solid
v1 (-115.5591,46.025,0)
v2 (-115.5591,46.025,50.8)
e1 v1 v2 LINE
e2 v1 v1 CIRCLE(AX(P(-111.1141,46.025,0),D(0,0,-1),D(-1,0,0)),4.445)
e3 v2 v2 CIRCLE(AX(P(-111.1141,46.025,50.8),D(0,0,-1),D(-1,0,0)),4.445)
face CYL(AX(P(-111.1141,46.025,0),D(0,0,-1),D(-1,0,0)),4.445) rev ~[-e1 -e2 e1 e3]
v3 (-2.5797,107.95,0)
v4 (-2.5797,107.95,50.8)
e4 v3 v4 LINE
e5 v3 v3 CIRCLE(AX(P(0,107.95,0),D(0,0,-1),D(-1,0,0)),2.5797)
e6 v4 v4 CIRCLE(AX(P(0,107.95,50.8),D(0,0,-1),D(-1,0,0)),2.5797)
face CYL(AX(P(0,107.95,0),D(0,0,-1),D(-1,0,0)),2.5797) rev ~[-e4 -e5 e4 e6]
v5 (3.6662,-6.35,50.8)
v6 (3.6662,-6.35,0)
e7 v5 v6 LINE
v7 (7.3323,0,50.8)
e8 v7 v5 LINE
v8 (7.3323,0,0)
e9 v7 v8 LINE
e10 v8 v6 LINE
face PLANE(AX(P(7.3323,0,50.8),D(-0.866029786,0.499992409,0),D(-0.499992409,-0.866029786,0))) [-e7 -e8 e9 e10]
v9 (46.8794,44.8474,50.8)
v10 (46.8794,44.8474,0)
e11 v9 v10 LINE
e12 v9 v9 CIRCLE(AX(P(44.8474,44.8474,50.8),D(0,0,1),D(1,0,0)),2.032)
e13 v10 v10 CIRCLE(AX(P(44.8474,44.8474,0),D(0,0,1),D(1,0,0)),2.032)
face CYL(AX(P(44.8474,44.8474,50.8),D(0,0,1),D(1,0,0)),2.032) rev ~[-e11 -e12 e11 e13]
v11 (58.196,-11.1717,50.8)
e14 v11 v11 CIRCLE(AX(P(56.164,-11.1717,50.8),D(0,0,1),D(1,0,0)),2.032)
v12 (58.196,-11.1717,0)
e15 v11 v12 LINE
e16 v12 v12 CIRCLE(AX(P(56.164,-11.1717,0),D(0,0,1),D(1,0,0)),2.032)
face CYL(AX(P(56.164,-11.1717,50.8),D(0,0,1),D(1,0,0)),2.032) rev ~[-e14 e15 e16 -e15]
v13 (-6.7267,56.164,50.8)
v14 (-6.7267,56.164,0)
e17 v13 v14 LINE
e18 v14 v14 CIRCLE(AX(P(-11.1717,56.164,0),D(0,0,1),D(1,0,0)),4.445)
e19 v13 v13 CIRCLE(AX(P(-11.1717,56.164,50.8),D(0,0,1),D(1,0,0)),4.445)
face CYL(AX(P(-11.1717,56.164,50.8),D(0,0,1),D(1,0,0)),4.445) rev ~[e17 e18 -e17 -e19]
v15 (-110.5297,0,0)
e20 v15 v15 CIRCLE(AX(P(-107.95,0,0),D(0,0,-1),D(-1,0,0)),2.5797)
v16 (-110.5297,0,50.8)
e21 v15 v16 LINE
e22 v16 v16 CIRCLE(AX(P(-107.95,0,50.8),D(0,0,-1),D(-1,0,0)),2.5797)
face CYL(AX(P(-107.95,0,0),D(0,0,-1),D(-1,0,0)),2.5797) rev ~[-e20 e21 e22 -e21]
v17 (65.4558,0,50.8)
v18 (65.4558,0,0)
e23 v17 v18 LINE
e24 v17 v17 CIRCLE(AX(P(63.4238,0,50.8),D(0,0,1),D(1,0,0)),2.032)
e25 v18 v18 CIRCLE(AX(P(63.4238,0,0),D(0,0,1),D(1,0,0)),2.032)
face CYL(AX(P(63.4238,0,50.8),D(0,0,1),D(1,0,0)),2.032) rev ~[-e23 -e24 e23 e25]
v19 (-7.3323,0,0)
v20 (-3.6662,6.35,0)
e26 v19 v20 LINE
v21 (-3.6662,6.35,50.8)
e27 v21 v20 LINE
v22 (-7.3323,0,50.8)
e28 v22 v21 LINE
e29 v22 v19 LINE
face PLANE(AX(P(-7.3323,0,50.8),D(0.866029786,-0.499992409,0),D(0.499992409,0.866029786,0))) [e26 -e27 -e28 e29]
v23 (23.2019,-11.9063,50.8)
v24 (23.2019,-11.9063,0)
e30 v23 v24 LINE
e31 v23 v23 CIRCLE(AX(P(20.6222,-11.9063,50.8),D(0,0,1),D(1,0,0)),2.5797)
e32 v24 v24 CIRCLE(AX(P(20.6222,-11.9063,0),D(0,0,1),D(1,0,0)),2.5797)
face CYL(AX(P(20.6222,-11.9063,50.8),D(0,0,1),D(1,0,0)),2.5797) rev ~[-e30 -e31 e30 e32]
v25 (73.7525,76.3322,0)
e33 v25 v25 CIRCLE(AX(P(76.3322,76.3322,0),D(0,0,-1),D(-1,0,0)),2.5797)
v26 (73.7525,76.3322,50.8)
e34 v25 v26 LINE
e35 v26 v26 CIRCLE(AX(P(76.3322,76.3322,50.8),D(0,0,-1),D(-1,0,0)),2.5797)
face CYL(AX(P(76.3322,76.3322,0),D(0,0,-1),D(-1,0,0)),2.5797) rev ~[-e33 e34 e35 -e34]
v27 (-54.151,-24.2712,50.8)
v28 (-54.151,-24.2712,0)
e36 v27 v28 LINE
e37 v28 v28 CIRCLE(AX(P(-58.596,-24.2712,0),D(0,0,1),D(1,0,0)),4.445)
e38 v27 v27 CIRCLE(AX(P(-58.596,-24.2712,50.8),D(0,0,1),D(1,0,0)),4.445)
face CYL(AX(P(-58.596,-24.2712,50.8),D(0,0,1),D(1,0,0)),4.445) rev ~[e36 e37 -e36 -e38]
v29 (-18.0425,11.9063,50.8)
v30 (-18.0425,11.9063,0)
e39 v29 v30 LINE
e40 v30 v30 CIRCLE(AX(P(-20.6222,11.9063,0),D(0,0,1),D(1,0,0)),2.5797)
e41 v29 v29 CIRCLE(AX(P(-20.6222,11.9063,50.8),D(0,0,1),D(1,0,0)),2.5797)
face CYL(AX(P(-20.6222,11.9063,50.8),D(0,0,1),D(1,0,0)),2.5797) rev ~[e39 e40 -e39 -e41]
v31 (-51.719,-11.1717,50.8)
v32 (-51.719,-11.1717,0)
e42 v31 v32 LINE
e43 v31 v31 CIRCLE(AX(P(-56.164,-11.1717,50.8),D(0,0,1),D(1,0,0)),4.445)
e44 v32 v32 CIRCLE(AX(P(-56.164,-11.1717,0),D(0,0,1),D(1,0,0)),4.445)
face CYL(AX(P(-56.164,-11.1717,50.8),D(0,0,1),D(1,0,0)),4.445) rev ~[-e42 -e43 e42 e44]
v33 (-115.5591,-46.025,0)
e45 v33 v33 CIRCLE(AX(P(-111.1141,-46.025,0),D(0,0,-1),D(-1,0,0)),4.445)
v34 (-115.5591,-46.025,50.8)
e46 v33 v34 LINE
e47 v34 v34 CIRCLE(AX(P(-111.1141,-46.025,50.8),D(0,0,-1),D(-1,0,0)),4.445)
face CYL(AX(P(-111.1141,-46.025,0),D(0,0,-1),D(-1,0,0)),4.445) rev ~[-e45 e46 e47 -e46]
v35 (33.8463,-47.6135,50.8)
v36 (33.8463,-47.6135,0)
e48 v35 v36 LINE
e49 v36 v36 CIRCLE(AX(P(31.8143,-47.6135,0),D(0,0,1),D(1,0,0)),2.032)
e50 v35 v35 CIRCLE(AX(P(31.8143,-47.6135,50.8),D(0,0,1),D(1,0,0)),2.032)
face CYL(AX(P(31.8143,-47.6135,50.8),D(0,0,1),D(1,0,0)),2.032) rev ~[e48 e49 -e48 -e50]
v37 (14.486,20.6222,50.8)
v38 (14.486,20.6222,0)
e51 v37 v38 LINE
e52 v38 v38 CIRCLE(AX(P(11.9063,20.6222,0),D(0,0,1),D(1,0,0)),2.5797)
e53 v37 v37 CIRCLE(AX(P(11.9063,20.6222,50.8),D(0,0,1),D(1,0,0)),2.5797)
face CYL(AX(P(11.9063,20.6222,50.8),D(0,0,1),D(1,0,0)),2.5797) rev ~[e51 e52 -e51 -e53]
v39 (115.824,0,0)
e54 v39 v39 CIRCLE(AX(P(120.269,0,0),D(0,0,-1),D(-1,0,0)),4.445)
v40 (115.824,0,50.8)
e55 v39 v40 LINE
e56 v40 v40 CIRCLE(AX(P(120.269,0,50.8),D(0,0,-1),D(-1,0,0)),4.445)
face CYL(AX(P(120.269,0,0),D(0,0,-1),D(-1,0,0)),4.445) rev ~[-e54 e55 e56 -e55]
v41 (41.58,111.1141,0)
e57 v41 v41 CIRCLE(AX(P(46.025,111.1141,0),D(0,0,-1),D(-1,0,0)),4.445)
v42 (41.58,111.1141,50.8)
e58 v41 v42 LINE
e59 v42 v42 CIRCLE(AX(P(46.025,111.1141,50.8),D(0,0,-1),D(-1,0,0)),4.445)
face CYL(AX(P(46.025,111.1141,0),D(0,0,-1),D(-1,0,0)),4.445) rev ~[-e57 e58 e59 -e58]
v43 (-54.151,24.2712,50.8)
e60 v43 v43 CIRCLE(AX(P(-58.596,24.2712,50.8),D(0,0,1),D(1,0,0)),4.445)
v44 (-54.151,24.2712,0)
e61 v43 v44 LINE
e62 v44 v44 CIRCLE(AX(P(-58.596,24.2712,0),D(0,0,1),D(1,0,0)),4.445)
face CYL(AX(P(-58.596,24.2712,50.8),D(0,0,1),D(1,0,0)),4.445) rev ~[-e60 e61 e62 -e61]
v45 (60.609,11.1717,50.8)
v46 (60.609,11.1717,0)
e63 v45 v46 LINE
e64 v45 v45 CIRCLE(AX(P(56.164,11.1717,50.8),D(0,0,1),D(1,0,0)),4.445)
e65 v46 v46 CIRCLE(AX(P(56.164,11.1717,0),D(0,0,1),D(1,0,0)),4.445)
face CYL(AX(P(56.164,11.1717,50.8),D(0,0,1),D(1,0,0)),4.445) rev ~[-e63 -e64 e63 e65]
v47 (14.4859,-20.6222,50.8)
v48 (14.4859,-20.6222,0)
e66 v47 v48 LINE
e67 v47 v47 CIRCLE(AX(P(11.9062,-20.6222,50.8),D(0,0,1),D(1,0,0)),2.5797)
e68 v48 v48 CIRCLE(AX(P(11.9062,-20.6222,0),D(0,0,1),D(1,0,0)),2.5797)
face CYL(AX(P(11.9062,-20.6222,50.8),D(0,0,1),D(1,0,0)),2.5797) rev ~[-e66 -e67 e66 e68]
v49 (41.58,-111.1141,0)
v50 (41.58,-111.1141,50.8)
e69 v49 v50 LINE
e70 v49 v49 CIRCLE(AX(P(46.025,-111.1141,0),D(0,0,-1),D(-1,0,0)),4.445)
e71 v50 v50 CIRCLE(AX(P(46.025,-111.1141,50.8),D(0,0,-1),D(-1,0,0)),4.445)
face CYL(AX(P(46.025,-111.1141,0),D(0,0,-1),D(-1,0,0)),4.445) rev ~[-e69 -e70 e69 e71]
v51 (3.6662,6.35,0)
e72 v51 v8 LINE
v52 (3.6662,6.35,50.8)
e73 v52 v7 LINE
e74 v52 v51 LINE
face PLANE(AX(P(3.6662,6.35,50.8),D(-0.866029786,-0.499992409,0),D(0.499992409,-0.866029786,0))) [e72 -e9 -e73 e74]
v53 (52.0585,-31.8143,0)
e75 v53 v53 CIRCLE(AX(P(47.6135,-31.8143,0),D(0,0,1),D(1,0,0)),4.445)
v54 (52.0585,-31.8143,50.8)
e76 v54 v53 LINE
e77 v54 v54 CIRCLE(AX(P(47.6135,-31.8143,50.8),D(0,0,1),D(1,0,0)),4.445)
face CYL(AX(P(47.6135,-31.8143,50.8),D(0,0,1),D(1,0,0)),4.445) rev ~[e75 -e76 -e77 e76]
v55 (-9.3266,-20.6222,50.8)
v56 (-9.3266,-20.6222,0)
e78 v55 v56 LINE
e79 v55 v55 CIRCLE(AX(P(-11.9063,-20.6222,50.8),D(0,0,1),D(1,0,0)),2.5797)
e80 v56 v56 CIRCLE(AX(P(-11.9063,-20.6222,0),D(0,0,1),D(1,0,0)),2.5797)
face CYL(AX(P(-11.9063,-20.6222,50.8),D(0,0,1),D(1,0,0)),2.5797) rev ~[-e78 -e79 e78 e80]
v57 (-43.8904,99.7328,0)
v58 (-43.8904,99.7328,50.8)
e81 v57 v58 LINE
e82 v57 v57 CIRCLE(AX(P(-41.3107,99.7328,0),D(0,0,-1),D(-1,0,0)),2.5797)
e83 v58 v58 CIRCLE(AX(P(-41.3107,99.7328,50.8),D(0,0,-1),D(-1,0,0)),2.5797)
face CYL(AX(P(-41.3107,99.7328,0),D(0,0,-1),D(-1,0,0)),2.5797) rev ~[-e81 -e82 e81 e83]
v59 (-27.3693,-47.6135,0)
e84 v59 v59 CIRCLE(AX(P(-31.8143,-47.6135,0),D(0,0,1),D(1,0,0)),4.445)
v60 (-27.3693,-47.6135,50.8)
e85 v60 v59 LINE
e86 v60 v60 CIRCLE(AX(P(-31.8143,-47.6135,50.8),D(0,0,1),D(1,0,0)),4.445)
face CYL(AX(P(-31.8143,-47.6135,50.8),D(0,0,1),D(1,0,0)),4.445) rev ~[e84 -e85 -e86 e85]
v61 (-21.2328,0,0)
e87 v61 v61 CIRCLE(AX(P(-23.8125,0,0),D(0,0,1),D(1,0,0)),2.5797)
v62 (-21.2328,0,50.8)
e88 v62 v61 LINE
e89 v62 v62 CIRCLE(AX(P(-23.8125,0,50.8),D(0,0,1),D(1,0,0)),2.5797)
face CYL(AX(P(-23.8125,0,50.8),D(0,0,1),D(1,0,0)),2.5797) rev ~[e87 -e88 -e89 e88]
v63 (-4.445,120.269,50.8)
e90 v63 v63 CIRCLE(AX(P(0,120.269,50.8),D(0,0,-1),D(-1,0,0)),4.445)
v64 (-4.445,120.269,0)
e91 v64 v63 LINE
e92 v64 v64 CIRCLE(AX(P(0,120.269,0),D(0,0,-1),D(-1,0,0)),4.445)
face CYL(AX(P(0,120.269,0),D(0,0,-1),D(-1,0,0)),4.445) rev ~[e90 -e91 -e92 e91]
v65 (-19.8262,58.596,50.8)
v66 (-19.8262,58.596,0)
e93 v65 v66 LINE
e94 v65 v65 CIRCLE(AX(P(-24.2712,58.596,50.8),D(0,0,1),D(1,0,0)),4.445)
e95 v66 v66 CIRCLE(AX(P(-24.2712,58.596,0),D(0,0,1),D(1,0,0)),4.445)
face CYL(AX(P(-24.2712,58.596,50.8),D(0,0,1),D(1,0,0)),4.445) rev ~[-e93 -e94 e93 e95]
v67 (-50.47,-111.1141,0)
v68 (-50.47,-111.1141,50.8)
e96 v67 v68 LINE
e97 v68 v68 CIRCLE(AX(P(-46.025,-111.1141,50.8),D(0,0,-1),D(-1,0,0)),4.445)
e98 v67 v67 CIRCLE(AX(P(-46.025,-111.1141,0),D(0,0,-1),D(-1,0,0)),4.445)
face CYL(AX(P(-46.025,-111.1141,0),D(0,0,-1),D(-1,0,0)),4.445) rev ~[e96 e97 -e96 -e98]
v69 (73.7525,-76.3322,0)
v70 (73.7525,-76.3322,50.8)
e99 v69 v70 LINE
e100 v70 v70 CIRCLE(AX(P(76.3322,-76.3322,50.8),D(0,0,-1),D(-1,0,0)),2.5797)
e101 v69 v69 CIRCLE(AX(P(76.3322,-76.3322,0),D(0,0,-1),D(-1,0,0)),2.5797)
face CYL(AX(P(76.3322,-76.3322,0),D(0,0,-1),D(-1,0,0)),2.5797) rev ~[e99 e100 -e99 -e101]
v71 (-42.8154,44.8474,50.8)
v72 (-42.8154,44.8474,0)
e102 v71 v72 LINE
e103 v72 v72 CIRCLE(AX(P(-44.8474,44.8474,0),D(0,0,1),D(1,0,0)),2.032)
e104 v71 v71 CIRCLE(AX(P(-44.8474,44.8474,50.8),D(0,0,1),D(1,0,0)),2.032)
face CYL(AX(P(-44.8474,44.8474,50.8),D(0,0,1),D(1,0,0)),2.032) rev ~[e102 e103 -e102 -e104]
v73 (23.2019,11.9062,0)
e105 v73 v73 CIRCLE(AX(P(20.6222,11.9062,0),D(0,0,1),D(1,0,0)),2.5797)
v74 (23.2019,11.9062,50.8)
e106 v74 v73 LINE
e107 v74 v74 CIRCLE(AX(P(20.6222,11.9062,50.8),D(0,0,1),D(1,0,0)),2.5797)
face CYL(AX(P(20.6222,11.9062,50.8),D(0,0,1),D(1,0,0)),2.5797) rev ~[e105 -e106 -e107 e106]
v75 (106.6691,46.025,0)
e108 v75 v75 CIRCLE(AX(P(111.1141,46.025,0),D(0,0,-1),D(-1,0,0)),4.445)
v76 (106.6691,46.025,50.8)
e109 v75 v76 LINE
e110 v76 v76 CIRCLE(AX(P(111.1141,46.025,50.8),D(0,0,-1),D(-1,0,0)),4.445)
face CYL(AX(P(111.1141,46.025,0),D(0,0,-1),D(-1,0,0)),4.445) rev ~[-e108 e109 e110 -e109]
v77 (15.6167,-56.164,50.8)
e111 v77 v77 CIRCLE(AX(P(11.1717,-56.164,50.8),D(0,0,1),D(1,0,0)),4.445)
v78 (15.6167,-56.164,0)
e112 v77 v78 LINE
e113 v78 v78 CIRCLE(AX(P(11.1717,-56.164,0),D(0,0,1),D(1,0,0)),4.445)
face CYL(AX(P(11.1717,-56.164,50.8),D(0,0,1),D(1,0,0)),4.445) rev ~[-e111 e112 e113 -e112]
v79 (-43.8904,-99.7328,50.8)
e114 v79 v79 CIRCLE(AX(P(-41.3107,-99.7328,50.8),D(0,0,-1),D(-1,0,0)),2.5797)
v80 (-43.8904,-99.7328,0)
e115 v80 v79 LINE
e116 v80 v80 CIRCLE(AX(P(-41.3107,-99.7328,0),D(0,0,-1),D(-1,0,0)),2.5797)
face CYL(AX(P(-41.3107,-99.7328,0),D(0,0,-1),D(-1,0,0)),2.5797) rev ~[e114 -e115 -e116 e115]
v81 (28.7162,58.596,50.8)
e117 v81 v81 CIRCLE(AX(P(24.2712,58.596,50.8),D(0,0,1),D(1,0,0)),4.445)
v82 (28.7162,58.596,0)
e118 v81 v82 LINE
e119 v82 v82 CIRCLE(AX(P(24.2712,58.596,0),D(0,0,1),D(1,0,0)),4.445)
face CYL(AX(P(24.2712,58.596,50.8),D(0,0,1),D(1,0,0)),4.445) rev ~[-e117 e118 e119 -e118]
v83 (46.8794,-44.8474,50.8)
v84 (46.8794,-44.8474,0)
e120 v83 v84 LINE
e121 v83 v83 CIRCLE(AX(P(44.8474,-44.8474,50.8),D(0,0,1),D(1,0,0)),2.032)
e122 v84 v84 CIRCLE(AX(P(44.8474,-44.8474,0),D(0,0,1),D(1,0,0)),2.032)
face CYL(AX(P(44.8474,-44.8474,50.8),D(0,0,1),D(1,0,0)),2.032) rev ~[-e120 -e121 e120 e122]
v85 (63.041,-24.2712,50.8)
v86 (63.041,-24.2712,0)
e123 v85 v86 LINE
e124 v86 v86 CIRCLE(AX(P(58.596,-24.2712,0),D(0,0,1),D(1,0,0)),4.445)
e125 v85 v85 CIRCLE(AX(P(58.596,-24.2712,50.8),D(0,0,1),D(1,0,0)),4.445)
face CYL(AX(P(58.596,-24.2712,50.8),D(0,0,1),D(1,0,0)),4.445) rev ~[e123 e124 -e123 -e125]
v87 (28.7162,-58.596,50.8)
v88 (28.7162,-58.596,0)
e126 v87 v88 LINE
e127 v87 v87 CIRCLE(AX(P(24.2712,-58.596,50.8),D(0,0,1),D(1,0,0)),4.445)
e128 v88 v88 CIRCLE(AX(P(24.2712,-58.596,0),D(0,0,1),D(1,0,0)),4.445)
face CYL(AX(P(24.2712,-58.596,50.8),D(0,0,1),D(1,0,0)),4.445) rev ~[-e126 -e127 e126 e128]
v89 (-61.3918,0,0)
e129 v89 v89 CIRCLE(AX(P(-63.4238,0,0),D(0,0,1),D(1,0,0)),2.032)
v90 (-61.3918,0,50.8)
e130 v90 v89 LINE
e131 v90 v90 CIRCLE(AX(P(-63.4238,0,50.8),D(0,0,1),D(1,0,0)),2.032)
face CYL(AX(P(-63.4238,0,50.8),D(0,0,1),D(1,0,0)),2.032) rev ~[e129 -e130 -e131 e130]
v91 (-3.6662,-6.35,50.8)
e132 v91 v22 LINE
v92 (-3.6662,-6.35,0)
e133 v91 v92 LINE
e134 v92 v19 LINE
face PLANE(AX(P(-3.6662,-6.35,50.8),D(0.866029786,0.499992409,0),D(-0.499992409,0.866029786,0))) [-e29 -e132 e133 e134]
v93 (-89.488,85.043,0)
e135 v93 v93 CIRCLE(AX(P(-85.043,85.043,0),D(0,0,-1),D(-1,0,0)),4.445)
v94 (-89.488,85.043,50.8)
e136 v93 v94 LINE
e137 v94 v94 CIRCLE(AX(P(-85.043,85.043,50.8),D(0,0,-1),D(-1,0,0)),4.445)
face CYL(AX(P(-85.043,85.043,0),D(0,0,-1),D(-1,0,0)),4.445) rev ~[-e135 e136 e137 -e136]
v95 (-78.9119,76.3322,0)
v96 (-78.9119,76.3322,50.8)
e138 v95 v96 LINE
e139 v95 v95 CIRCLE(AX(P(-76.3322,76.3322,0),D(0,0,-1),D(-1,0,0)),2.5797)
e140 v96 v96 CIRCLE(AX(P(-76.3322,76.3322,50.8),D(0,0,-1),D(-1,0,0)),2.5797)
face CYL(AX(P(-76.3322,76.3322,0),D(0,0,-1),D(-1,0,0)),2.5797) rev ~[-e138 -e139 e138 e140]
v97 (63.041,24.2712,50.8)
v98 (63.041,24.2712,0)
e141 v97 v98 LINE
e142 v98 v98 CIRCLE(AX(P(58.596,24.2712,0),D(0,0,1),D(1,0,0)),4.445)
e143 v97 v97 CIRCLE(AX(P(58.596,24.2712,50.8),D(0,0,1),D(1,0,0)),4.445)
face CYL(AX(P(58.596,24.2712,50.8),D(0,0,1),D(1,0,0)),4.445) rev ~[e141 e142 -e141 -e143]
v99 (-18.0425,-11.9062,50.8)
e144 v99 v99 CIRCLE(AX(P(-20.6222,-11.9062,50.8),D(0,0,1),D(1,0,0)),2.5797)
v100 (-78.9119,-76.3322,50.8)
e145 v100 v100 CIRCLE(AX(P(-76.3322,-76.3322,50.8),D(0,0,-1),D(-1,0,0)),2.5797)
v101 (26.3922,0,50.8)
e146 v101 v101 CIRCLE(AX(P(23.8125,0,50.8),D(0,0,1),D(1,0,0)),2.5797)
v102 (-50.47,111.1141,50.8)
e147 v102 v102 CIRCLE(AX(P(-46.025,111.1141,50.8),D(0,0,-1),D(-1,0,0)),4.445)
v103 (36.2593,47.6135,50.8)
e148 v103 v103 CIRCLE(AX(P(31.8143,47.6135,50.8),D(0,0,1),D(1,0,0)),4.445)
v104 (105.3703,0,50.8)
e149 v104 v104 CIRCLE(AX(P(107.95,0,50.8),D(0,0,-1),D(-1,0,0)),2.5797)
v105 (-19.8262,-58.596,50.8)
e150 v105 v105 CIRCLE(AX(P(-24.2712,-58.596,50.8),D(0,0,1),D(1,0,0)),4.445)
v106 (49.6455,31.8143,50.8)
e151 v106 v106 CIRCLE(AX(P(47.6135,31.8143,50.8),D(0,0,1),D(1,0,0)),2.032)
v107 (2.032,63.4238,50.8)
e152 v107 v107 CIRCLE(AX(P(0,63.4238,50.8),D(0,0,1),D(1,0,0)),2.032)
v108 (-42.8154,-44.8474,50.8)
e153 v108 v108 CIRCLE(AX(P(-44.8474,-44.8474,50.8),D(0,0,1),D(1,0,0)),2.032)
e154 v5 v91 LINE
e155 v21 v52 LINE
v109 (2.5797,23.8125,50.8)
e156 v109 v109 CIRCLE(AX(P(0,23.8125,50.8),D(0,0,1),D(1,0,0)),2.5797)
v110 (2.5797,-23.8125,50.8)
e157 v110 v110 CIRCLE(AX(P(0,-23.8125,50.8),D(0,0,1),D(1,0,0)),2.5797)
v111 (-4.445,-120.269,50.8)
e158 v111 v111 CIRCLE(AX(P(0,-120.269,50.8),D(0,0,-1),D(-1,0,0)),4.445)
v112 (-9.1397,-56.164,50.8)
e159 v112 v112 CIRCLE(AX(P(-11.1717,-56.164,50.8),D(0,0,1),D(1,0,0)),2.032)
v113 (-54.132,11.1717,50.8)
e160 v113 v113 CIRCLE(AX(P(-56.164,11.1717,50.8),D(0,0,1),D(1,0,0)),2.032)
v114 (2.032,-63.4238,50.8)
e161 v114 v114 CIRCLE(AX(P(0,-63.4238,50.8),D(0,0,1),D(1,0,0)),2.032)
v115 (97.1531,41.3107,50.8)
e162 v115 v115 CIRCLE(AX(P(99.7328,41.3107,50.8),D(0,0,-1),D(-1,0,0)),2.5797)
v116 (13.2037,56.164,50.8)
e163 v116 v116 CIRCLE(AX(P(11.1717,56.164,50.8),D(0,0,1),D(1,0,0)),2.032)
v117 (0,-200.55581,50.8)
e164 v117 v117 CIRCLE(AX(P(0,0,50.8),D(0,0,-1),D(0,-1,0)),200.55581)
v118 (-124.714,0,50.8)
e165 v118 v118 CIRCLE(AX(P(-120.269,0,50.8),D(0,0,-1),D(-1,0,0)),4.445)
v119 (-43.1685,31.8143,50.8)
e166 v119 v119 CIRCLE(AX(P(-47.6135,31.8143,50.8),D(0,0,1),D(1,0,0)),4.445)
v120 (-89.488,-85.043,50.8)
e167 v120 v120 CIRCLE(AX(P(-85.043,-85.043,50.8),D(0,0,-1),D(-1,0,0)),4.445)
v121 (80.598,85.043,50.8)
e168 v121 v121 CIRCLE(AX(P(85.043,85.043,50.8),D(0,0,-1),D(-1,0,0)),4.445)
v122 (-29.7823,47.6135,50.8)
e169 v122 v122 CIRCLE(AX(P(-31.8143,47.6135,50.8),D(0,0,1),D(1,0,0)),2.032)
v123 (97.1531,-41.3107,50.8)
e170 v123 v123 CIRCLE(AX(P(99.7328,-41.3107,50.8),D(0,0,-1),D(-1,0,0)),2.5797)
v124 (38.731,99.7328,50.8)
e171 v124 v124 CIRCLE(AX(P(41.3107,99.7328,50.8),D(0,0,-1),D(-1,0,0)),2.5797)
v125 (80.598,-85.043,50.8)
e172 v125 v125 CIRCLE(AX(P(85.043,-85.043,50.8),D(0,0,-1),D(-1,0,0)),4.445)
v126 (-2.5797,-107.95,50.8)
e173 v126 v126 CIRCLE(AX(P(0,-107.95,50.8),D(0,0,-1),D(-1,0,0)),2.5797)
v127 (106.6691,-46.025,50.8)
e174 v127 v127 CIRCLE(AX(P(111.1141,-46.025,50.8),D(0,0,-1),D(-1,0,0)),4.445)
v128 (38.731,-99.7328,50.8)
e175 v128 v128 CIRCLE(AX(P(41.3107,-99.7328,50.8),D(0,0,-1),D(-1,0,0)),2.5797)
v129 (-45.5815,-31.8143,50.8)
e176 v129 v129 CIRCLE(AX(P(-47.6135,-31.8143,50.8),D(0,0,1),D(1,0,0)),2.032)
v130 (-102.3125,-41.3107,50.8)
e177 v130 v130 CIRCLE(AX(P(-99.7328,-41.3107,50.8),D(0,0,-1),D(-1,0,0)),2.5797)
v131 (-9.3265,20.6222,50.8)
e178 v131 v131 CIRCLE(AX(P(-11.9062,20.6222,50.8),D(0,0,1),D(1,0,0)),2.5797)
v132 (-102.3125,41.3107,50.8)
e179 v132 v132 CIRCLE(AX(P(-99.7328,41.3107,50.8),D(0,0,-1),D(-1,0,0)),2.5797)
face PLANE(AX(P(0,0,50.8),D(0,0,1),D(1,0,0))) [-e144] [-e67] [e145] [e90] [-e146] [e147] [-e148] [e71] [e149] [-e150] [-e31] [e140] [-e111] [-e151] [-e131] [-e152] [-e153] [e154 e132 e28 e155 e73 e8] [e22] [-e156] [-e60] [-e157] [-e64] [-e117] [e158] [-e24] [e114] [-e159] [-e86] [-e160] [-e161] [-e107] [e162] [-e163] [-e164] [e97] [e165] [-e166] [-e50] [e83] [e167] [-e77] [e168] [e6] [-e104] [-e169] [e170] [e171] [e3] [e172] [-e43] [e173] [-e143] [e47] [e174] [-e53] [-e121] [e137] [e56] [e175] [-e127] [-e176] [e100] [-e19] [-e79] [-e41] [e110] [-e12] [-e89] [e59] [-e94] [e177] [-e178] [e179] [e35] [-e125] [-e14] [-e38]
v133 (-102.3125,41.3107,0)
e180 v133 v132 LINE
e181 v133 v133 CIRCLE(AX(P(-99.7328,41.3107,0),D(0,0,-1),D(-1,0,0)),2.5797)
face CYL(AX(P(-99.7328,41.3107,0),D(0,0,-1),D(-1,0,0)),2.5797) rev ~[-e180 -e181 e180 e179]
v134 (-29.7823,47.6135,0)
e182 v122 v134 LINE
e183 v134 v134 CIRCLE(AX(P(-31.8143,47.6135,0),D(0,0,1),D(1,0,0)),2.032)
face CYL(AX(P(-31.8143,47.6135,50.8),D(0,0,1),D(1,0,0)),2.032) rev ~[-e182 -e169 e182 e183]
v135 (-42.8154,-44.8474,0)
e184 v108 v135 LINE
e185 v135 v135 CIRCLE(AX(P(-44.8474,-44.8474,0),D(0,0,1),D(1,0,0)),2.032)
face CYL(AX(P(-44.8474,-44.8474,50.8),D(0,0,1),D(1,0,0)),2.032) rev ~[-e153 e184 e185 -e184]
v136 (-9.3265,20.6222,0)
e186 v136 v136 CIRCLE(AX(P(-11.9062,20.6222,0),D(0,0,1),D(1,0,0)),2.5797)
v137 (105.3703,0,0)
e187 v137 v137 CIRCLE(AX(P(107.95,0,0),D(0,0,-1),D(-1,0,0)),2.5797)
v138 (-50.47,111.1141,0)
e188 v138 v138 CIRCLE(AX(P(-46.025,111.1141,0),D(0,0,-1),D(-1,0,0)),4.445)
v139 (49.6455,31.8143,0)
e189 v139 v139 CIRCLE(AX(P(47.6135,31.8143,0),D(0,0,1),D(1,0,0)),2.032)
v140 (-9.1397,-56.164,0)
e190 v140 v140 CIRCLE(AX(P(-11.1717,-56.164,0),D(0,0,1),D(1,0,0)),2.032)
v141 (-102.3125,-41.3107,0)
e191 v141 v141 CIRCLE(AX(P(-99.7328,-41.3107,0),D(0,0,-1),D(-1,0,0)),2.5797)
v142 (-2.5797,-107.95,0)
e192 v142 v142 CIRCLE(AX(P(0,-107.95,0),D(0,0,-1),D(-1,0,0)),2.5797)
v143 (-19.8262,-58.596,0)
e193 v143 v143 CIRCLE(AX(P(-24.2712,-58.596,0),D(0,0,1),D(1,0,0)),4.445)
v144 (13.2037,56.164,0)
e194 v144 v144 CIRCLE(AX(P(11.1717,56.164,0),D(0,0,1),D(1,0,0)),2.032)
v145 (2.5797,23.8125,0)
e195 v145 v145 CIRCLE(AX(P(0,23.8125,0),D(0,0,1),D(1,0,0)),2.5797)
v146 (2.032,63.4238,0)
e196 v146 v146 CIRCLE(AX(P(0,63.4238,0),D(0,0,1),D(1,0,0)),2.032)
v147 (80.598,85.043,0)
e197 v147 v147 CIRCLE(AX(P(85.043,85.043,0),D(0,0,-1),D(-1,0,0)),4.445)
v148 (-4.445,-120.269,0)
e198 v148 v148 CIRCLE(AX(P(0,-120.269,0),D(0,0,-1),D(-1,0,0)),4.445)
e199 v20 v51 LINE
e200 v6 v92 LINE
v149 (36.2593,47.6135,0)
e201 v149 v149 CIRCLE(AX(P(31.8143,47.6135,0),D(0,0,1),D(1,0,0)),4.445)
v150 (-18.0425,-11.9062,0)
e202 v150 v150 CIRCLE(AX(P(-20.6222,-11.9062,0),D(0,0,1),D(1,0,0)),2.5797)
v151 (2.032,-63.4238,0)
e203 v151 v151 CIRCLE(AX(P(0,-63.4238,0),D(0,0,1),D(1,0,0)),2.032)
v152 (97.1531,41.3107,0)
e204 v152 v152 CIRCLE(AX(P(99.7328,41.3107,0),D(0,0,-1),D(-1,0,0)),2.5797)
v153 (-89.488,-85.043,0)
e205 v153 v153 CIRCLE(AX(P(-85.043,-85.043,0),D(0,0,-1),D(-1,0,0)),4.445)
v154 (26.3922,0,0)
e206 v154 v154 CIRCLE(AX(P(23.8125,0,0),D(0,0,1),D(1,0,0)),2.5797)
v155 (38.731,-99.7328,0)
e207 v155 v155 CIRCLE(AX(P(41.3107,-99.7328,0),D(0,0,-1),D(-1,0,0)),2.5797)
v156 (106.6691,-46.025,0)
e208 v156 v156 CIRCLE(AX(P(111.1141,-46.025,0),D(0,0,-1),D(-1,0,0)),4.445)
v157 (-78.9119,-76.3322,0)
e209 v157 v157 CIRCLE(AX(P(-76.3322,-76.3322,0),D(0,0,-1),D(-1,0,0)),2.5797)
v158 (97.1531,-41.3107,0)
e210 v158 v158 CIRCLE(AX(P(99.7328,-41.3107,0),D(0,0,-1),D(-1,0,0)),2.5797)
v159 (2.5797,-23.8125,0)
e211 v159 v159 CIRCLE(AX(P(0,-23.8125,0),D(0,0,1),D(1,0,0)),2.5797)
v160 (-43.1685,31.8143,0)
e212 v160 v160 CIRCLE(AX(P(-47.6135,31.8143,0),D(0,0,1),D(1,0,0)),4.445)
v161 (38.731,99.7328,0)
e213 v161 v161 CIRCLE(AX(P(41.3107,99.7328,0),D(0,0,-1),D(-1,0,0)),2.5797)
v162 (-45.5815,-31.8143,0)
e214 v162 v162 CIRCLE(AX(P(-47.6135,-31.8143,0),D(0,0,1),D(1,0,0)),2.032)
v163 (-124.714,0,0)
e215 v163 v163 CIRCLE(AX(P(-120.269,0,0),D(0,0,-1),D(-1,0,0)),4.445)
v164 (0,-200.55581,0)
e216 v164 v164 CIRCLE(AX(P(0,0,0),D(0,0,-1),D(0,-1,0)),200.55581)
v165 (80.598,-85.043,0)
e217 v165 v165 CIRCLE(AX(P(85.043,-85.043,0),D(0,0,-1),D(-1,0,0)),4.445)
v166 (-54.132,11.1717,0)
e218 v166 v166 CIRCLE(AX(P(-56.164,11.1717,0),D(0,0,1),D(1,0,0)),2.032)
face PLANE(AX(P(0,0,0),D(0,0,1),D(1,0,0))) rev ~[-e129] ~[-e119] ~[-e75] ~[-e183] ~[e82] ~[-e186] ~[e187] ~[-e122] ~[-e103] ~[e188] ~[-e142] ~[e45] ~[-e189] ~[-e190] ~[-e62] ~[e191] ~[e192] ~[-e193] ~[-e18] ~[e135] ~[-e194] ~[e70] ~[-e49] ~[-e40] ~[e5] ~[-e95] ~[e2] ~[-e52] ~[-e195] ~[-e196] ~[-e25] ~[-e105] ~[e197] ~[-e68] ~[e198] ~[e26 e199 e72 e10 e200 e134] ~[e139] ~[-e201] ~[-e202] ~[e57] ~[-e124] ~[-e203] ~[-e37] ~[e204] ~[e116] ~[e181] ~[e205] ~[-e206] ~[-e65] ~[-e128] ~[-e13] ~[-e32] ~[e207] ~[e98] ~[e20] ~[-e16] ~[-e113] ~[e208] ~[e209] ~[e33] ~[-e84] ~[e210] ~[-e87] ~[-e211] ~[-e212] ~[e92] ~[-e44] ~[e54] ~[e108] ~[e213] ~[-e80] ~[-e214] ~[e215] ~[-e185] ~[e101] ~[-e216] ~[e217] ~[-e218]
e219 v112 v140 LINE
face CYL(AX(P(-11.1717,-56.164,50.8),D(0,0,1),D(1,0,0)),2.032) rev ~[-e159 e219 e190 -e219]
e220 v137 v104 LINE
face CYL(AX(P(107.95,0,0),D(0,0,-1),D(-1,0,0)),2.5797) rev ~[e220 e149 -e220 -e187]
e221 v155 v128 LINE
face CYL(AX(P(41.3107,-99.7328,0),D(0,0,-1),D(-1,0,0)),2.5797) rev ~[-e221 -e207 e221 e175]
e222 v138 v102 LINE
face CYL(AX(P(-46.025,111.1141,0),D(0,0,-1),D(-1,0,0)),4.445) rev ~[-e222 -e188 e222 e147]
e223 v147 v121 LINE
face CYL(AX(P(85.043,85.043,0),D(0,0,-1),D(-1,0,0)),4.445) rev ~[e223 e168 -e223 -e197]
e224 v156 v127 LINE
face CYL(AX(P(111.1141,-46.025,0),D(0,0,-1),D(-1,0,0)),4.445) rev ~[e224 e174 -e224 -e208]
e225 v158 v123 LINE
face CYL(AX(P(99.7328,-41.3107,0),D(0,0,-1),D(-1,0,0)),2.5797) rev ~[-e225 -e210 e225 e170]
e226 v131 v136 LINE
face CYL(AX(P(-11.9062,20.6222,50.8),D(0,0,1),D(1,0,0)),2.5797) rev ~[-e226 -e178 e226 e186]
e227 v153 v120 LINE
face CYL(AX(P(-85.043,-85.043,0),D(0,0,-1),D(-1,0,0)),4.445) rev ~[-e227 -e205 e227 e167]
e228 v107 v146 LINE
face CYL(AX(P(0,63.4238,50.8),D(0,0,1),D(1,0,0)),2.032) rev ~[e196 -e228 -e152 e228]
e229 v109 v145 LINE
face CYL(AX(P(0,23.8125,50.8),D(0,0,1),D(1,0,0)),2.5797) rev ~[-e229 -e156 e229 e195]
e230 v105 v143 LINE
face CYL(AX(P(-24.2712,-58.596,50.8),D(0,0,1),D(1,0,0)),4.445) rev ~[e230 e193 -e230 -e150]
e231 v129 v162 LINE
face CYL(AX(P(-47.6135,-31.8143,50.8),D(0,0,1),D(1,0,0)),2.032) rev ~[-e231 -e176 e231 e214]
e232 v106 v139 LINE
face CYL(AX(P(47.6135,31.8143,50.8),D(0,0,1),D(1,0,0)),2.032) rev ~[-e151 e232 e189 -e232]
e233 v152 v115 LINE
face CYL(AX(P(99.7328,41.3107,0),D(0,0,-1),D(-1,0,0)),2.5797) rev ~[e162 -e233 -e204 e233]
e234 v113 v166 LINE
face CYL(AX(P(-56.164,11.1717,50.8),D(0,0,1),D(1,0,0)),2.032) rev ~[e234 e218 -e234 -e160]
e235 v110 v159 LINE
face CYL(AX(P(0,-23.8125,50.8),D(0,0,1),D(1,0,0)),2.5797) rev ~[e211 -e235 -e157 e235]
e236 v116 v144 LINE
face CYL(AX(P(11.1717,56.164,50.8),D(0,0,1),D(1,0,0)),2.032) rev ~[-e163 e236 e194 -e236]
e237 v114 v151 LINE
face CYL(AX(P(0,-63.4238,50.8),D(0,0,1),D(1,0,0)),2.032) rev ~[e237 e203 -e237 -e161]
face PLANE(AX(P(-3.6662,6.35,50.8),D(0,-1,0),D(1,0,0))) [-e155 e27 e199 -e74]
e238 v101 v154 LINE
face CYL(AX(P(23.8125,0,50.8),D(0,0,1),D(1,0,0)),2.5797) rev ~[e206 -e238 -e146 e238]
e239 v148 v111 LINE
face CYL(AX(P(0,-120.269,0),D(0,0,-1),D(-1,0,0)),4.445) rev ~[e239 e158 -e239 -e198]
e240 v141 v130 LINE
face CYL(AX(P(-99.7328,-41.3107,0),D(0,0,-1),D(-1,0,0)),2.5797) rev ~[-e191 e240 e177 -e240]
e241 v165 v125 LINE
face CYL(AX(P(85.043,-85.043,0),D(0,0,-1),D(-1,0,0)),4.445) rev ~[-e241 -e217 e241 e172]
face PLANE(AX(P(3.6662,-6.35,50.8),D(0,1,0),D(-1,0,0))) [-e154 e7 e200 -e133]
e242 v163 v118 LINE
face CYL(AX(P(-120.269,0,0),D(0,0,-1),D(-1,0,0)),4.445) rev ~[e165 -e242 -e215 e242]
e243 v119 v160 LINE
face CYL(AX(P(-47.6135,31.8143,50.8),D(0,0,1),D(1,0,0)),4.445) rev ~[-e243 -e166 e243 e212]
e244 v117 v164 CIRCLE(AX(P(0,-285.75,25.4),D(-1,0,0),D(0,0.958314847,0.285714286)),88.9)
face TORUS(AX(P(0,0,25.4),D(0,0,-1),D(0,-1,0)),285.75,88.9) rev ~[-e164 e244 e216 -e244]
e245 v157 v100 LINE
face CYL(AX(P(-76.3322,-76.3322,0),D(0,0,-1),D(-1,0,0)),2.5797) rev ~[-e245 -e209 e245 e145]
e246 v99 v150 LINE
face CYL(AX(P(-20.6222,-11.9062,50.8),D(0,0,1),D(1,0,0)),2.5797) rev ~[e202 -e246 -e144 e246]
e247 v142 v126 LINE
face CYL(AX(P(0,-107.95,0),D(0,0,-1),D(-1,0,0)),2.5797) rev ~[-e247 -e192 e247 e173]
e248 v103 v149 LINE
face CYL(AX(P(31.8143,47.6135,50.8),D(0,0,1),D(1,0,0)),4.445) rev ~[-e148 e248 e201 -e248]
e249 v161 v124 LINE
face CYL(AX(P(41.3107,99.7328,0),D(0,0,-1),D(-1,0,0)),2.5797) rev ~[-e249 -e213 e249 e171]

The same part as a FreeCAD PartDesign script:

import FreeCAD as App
import Part
import Sketcher
from FreeCAD import Vector
Q = App.Units.Quantity


def add_polygon(sketch, points):
    """Adds a closed chain of lines whose ends are joined by coincident constraints."""
    first, n = sketch.GeometryCount, len(points)
    for a, b in zip(points, points[1:] + points[:1]):
        sketch.addGeometry(Part.LineSegment(App.Vector(*a, 0), App.Vector(*b, 0)), False)
    for i in range(n):
        sketch.addConstraint(Sketcher.Constraint("Coincident", first + i, 2, first + (i + 1) % n, 1))

doc = App.newDocument("Part")
params = doc.addObject("Spreadsheet::Sheet", "Params")
for row, (alias, value) in enumerate([
    ("sketch1_diameter", "16 in"),
    ("pad1_length", "2 in"),
    ("sketch2_diameter", "7 in"),
    ("groove_angle", "360 deg"),
    ("sketch3_diameter", "0.203126 in"),
    ("sketch4_diameter", "0.35 in"),
    ("sketch4_diameter2", "0.203126 in"),
    ("sketch5_diameter", "0.16 in"),
    ("sketch5_diameter2", "0.35 in"),
], start=1):
    params.set(f"A{row}", alias)
    params.set(f"B{row}", "=" + value)
    params.setAlias(f"B{row}", alias)

body = doc.addObject("PartDesign::Body", "Body")

# Sketch on XY plane
sketch1 = body.newObject("Sketcher::SketchObject", "Sketch")
sketch1.AttachmentSupport = (doc.getObject("XY_Plane"), [""])
sketch1.MapMode = "FlatFace"
sketch1.addGeometry(Part.Circle(Vector(0, 0, 0), Vector(0, 0, 1), 203.2), False)
sketch1.addConstraint([
    Sketcher.Constraint("Coincident", 0, 3, -1, 1),
    Sketcher.Constraint("Diameter", 0, Q("16 in")),
])
sketch1.setExpression("Constraints[1]", "Params.sketch1_diameter")
pad1 = body.newObject("PartDesign::Pad", "Pad")
pad1.Profile = sketch1
pad1.setExpression("Length", "Params.pad1_length")

# Sketch on YZ plane
sketch2 = body.newObject("Sketcher::SketchObject", "Sketch001")
sketch2.AttachmentSupport = (doc.getObject("YZ_Plane"), [""])
sketch2.MapMode = "FlatFace"
sketch2.addGeometry(Part.Circle(Vector(-285.75, 25.4, 0), Vector(0, 0, 1), 88.9), False)
sketch2.addConstraint([
    Sketcher.Constraint("Diameter", 0, Q("7 in")),
    Sketcher.Constraint("DistanceY", -1, 1, 0, 3, Q("1 in")),
    Sketcher.Constraint("DistanceX", 0, 3, -1, 1, Q("11.25 in")),
])
sketch2.setExpression("Constraints[0]", "Params.sketch2_diameter")
groove = body.newObject("PartDesign::Groove", "Groove")
groove.Profile = sketch2
groove.ReferenceAxis = (sketch2, ["V_Axis"])
groove.setExpression("Angle", "Params.groove_angle")

# Sketch on XY plane
sketch3 = body.newObject("Sketcher::SketchObject", "Sketch002")
sketch3.AttachmentSupport = (doc.getObject("XY_Plane"), [""])
sketch3.MapMode = "FlatFace"
sketch3.AttachmentOffset = App.Placement(Vector(0, 0, 2 * 25.4), App.Rotation())
add_polygon(sketch3, [(3.6662, 6.35), (-3.6662, 6.35), (-7.3323, 0), (-3.6662, -6.35), (3.6662, -6.35), (7.3323, 0)])  # lines 0-5
sketch3.addGeometry(Part.Circle(Vector(0, 23.8125, 0), Vector(0, 0, 1), 2.5797), False)  # 6
sketch3.addGeometry(Part.Circle(Vector(-11.9062, 20.6222, 0), Vector(0, 0, 1), 2.5797), False)  # 7
sketch3.addGeometry(Part.Circle(Vector(-20.6222, 11.9063, 0), Vector(0, 0, 1), 2.5797), False)  # 8
sketch3.addGeometry(Part.Circle(Vector(-23.8125, 0, 0), Vector(0, 0, 1), 2.5797), False)  # 9
sketch3.addGeometry(Part.Circle(Vector(-20.6222, -11.9062, 0), Vector(0, 0, 1), 2.5797), False)  # 10
sketch3.addGeometry(Part.Circle(Vector(-11.9063, -20.6222, 0), Vector(0, 0, 1), 2.5797), False)  # 11
sketch3.addGeometry(Part.Circle(Vector(0, -23.8125, 0), Vector(0, 0, 1), 2.5797), False)  # 12
sketch3.addGeometry(Part.Circle(Vector(11.9062, -20.6222, 0), Vector(0, 0, 1), 2.5797), False)  # 13
sketch3.addGeometry(Part.Circle(Vector(20.6222, -11.9063, 0), Vector(0, 0, 1), 2.5797), False)  # 14
sketch3.addGeometry(Part.Circle(Vector(23.8125, 0, 0), Vector(0, 0, 1), 2.5797), False)  # 15
sketch3.addGeometry(Part.Circle(Vector(20.6222, 11.9062, 0), Vector(0, 0, 1), 2.5797), False)  # 16
sketch3.addGeometry(Part.Circle(Vector(11.9063, 20.6222, 0), Vector(0, 0, 1), 2.5797), False)  # 17
sketch3.addConstraint([
    Sketcher.Constraint("Horizontal", 0),
    Sketcher.Constraint("Horizontal", 3),
    Sketcher.Constraint("Equal", 6, 7),
    Sketcher.Constraint("Equal", 7, 8),
    Sketcher.Constraint("Equal", 8, 9),
    Sketcher.Constraint("Equal", 9, 10),
    Sketcher.Constraint("Equal", 10, 11),
    Sketcher.Constraint("Equal", 11, 12),
    Sketcher.Constraint("Equal", 12, 13),
    Sketcher.Constraint("Equal", 13, 14),
    Sketcher.Constraint("Equal", 14, 15),
    Sketcher.Constraint("Equal", 15, 16),
    Sketcher.Constraint("Equal", 16, 17),
    Sketcher.Constraint("Symmetric", 6, 3, 12, 3, -1, 1),
    Sketcher.Constraint("Symmetric", 7, 3, 13, 3, -1, 1),
    Sketcher.Constraint("Symmetric", 8, 3, 14, 3, -1, 1),
    Sketcher.Constraint("Symmetric", 9, 3, 15, 3, -1, 1),
    Sketcher.Constraint("Symmetric", 10, 3, 16, 3, -1, 1),
    Sketcher.Constraint("Symmetric", 11, 3, 17, 3, -1, 1),
    Sketcher.Constraint("Symmetric", 0, 2, 3, 2, -1, 1),
    Sketcher.Constraint("Symmetric", 1, 2, 4, 2, -1, 1),
    Sketcher.Constraint("Symmetric", 11, 3, 13, 3, -2),
    Sketcher.Constraint("Symmetric", 10, 3, 14, 3, -2),
    Sketcher.Constraint("PointOnObject", 6, 3, -2),
    Sketcher.Constraint("PointOnObject", 9, 3, -1),
    Sketcher.Constraint("PointOnObject", 1, 2, -1),
    Sketcher.Constraint("Parallel", 2, 5),
    Sketcher.Constraint("Vertical", 0, 2, 2, 2),
    Sketcher.Constraint("Diameter", 6, Q("0.203126 in")),
    Sketcher.Constraint("DistanceY", 2, 2, 0, 2, Q("0.5 in")),
    Sketcher.Constraint("DistanceY", -1, 1, 6, 3, Q("0.9375 in")),
    Sketcher.Constraint("DistanceX", 9, 3, -1, 1, Q("0.9375 in")),
    Sketcher.Constraint("Angle", 1, Q("-119.9995 deg")),
    Sketcher.Constraint("DistanceY", 10, 3, 8, 3, Q("0.9375 in")),
    Sketcher.Constraint("DistanceX", 11, 3, 13, 3, Q("0.9375 in")),
    Sketcher.Constraint("DistanceX", 1, 2, 3, 2, Q("0.433 in")),
    Sketcher.Constraint("DistanceY", -1, 1, 7, 3, Q("0.8119 in")),
    Sketcher.Constraint("DistanceX", 8, 3, -1, 1, Q("0.8119 in")),
])
sketch3.setExpression("Constraints[34]", "Params.sketch3_diameter")
pocket1 = body.newObject("PartDesign::Pocket", "Pocket")
pocket1.Profile = sketch3
pocket1.Type = "ThroughAll"

# Sketch on XY plane
sketch4 = body.newObject("Sketcher::SketchObject", "Sketch003")
sketch4.AttachmentSupport = (doc.getObject("XY_Plane"), [""])
sketch4.MapMode = "FlatFace"
sketch4.addGeometry([
    Part.Circle(Vector(0, 107.95, 0), Vector(0, 0, 1), 2.5797),  # 0
    Part.Circle(Vector(0, 120.269, 0), Vector(0, 0, 1), 4.445),  # 1
    Part.Circle(Vector(41.3107, 99.7328, 0), Vector(0, 0, 1), 2.5797),  # 2
    Part.Circle(Vector(46.025, 111.1141, 0), Vector(0, 0, 1), 4.445),  # 3
    Part.Circle(Vector(76.3322, 76.3322, 0), Vector(0, 0, 1), 2.5797),  # 4
    Part.Circle(Vector(85.043, 85.043, 0), Vector(0, 0, 1), 4.445),  # 5
    Part.Circle(Vector(99.7328, 41.3107, 0), Vector(0, 0, 1), 2.5797),  # 6
    Part.Circle(Vector(111.1141, 46.025, 0), Vector(0, 0, 1), 4.445),  # 7
    Part.Circle(Vector(107.95, 0, 0), Vector(0, 0, 1), 2.5797),  # 8
    Part.Circle(Vector(120.269, 0, 0), Vector(0, 0, 1), 4.445),  # 9
    Part.Circle(Vector(99.7328, -41.3107, 0), Vector(0, 0, 1), 2.5797),  # 10
    Part.Circle(Vector(111.1141, -46.025, 0), Vector(0, 0, 1), 4.445),  # 11
    Part.Circle(Vector(76.3322, -76.3322, 0), Vector(0, 0, 1), 2.5797),  # 12
    Part.Circle(Vector(85.043, -85.043, 0), Vector(0, 0, 1), 4.445),  # 13
    Part.Circle(Vector(41.3107, -99.7328, 0), Vector(0, 0, 1), 2.5797),  # 14
    Part.Circle(Vector(46.025, -111.1141, 0), Vector(0, 0, 1), 4.445),  # 15
    Part.Circle(Vector(0, -107.95, 0), Vector(0, 0, 1), 2.5797),  # 16
    Part.Circle(Vector(0, -120.269, 0), Vector(0, 0, 1), 4.445),  # 17
    Part.Circle(Vector(-41.3107, -99.7328, 0), Vector(0, 0, 1), 2.5797),  # 18
    Part.Circle(Vector(-46.025, -111.1141, 0), Vector(0, 0, 1), 4.445),  # 19
    Part.Circle(Vector(-76.3322, -76.3322, 0), Vector(0, 0, 1), 2.5797),  # 20
    Part.Circle(Vector(-85.043, -85.043, 0), Vector(0, 0, 1), 4.445),  # 21
    Part.Circle(Vector(-99.7328, -41.3107, 0), Vector(0, 0, 1), 2.5797),  # 22
    Part.Circle(Vector(-111.1141, -46.025, 0), Vector(0, 0, 1), 4.445),  # 23
    Part.Circle(Vector(-107.95, 0, 0), Vector(0, 0, 1), 2.5797),  # 24
    Part.Circle(Vector(-120.269, 0, 0), Vector(0, 0, 1), 4.445),  # 25
    Part.Circle(Vector(-99.7328, 41.3107, 0), Vector(0, 0, 1), 2.5797),  # 26
    Part.Circle(Vector(-111.1141, 46.025, 0), Vector(0, 0, 1), 4.445),  # 27
    Part.Circle(Vector(-76.3322, 76.3322, 0), Vector(0, 0, 1), 2.5797),  # 28
    Part.Circle(Vector(-85.043, 85.043, 0), Vector(0, 0, 1), 4.445),  # 29
    Part.Circle(Vector(-41.3107, 99.7328, 0), Vector(0, 0, 1), 2.5797),  # 30
    Part.Circle(Vector(-46.025, 111.1141, 0), Vector(0, 0, 1), 4.445),  # 31
], False)
sketch4.addConstraint([
    Sketcher.Constraint("Equal", 0, 2),
    Sketcher.Constraint("Equal", 1, 3),
    Sketcher.Constraint("Equal", 2, 4),
    Sketcher.Constraint("Equal", 3, 5),
    Sketcher.Constraint("Equal", 4, 6),
    Sketcher.Constraint("Equal", 5, 7),
    Sketcher.Constraint("Equal", 6, 8),
    Sketcher.Constraint("Equal", 7, 9),
    Sketcher.Constraint("Equal", 8, 10),
    Sketcher.Constraint("Equal", 9, 11),
    Sketcher.Constraint("Equal", 10, 12),
    Sketcher.Constraint("Equal", 11, 13),
    Sketcher.Constraint("Equal", 12, 14),
    Sketcher.Constraint("Equal", 13, 15),
    Sketcher.Constraint("Equal", 14, 16),
    Sketcher.Constraint("Equal", 15, 17),
    Sketcher.Constraint("Equal", 16, 18),
    Sketcher.Constraint("Equal", 17, 19),
    Sketcher.Constraint("Equal", 18, 20),
    Sketcher.Constraint("Equal", 19, 21),
    Sketcher.Constraint("Equal", 20, 22),
    Sketcher.Constraint("Equal", 21, 23),
    Sketcher.Constraint("Equal", 22, 24),
    Sketcher.Constraint("Equal", 23, 25),
    Sketcher.Constraint("Equal", 24, 26),
    Sketcher.Constraint("Equal", 25, 27),
    Sketcher.Constraint("Equal", 26, 28),
    Sketcher.Constraint("Equal", 27, 29),
    Sketcher.Constraint("Equal", 28, 30),
    Sketcher.Constraint("Equal", 29, 31),
    Sketcher.Constraint("Symmetric", 0, 3, 16, 3, -1, 1),
    Sketcher.Constraint("Symmetric", 1, 3, 17, 3, -1, 1),
    Sketcher.Constraint("Symmetric", 2, 3, 18, 3, -1, 1),
    Sketcher.Constraint("Symmetric", 3, 3, 19, 3, -1, 1),
    Sketcher.Constraint("Symmetric", 4, 3, 20, 3, -1, 1),
    Sketcher.Constraint("Symmetric", 5, 3, 21, 3, -1, 1),
    Sketcher.Constraint("Symmetric", 6, 3, 22, 3, -1, 1),
    Sketcher.Constraint("Symmetric", 7, 3, 23, 3, -1, 1),
    Sketcher.Constraint("Symmetric", 8, 3, 24, 3, -1, 1),
    Sketcher.Constraint("Symmetric", 9, 3, 25, 3, -1, 1),
    Sketcher.Constraint("Symmetric", 10, 3, 26, 3, -1, 1),
    Sketcher.Constraint("Symmetric", 11, 3, 27, 3, -1, 1),
    Sketcher.Constraint("Symmetric", 12, 3, 28, 3, -1, 1),
    Sketcher.Constraint("Symmetric", 13, 3, 29, 3, -1, 1),
    Sketcher.Constraint("Symmetric", 14, 3, 30, 3, -1, 1),
    Sketcher.Constraint("Symmetric", 15, 3, 31, 3, -1, 1),
    Sketcher.Constraint("Symmetric", 14, 3, 18, 3, -2),
    Sketcher.Constraint("Symmetric", 15, 3, 19, 3, -2),
    Sketcher.Constraint("Symmetric", 12, 3, 20, 3, -2),
    Sketcher.Constraint("Symmetric", 13, 3, 21, 3, -2),
    Sketcher.Constraint("Symmetric", 10, 3, 22, 3, -2),
    Sketcher.Constraint("Symmetric", 11, 3, 23, 3, -2),
    Sketcher.Constraint("PointOnObject", 0, 3, -2),
    Sketcher.Constraint("PointOnObject", 1, 3, -2),
    Sketcher.Constraint("PointOnObject", 8, 3, -1),
    Sketcher.Constraint("PointOnObject", 9, 3, -1),
    Sketcher.Constraint("Diameter", 1, Q("0.35 in")),
    Sketcher.Constraint("Diameter", 0, Q("0.203126 in")),
    Sketcher.Constraint("DistanceY", -1, 1, 0, 3, Q("4.25 in")),
    Sketcher.Constraint("DistanceX", -1, 1, 8, 3, Q("4.25 in")),
    Sketcher.Constraint("DistanceY", -1, 1, 1, 3, Q("4.735 in")),
    Sketcher.Constraint("DistanceX", -1, 1, 9, 3, Q("4.735 in")),
    Sketcher.Constraint("DistanceX", -1, 1, 3, 3, Q("1.812 in")),
    Sketcher.Constraint("DistanceY", -1, 1, 7, 3, Q("1.812 in")),
    Sketcher.Constraint("DistanceX", -1, 1, 2, 3, Q("1.6264 in")),
    Sketcher.Constraint("DistanceY", -1, 1, 2, 3, Q("3.9265 in")),
    Sketcher.Constraint("DistanceX", -1, 1, 4, 3, Q("3.0052 in")),
    Sketcher.Constraint("DistanceY", -1, 1, 4, 3, Q("3.0052 in")),
    Sketcher.Constraint("DistanceX", -1, 1, 6, 3, Q("3.9265 in")),
    Sketcher.Constraint("DistanceY", -1, 1, 6, 3, Q("1.6264 in")),
    Sketcher.Constraint("DistanceY", -1, 1, 3, 3, Q("111.114 mm")),
    Sketcher.Constraint("DistanceX", -1, 1, 5, 3, Q("85.043 mm")),
    Sketcher.Constraint("DistanceY", -1, 1, 5, 3, Q("85.043 mm")),
    Sketcher.Constraint("DistanceX", -1, 1, 7, 3, Q("111.114 mm")),
])
sketch4.setExpression("Constraints[56]", "Params.sketch4_diameter")
sketch4.setExpression("Constraints[57]", "Params.sketch4_diameter2")
pocket2 = body.newObject("PartDesign::Pocket", "Pocket001")
pocket2.Profile = sketch4
pocket2.Type = "ThroughAll"
pocket2.Reversed = True

# Sketch on XY plane
sketch5 = body.newObject("Sketcher::SketchObject", "Sketch004")
sketch5.AttachmentSupport = (doc.getObject("XY_Plane"), [""])
sketch5.MapMode = "FlatFace"
sketch5.AttachmentOffset = App.Placement(Vector(0, 0, 2 * 25.4), App.Rotation())
sketch5.addGeometry([
    Part.Circle(Vector(0, 63.4238, 0), Vector(0, 0, 1), 2.032),  # 0
    Part.Circle(Vector(-44.8474, 44.8474, 0), Vector(0, 0, 1), 2.032),  # 1
    Part.Circle(Vector(-63.4238, 0, 0), Vector(0, 0, 1), 2.032),  # 2
    Part.Circle(Vector(-44.8474, -44.8474, 0), Vector(0, 0, 1), 2.032),  # 3
    Part.Circle(Vector(0, -63.4238, 0), Vector(0, 0, 1), 2.032),  # 4
    Part.Circle(Vector(44.8474, -44.8474, 0), Vector(0, 0, 1), 2.032),  # 5
    Part.Circle(Vector(63.4238, 0, 0), Vector(0, 0, 1), 2.032),  # 6
    Part.Circle(Vector(44.8474, 44.8474, 0), Vector(0, 0, 1), 2.032),  # 7
    Part.Circle(Vector(11.1717, 56.164, 0), Vector(0, 0, 1), 2.032),  # 8
    Part.Circle(Vector(24.2712, 58.596, 0), Vector(0, 0, 1), 4.445),  # 9
    Part.Circle(Vector(-24.2712, 58.596, 0), Vector(0, 0, 1), 4.445),  # 10
    Part.Circle(Vector(-58.596, 24.2712, 0), Vector(0, 0, 1), 4.445),  # 11
    Part.Circle(Vector(-58.596, -24.2712, 0), Vector(0, 0, 1), 4.445),  # 12
    Part.Circle(Vector(-24.2712, -58.596, 0), Vector(0, 0, 1), 4.445),  # 13
    Part.Circle(Vector(24.2712, -58.596, 0), Vector(0, 0, 1), 4.445),  # 14
    Part.Circle(Vector(58.596, -24.2712, 0), Vector(0, 0, 1), 4.445),  # 15
    Part.Circle(Vector(58.596, 24.2712, 0), Vector(0, 0, 1), 4.445),  # 16
    Part.Circle(Vector(-31.8143, 47.6135, 0), Vector(0, 0, 1), 2.032),  # 17
    Part.Circle(Vector(-56.164, 11.1717, 0), Vector(0, 0, 1), 2.032),  # 18
    Part.Circle(Vector(-47.6135, -31.8143, 0), Vector(0, 0, 1), 2.032),  # 19
    Part.Circle(Vector(-11.1717, -56.164, 0), Vector(0, 0, 1), 2.032),  # 20
    Part.Circle(Vector(31.8143, -47.6135, 0), Vector(0, 0, 1), 2.032),  # 21
    Part.Circle(Vector(56.164, -11.1717, 0), Vector(0, 0, 1), 2.032),  # 22
    Part.Circle(Vector(47.6135, 31.8143, 0), Vector(0, 0, 1), 2.032),  # 23
    Part.Circle(Vector(31.8143, 47.6135, 0), Vector(0, 0, 1), 4.445),  # 24
    Part.Circle(Vector(-11.1717, 56.164, 0), Vector(0, 0, 1), 4.445),  # 25
    Part.Circle(Vector(-47.6135, 31.8143, 0), Vector(0, 0, 1), 4.445),  # 26
    Part.Circle(Vector(-56.164, -11.1717, 0), Vector(0, 0, 1), 4.445),  # 27
    Part.Circle(Vector(-31.8143, -47.6135, 0), Vector(0, 0, 1), 4.445),  # 28
    Part.Circle(Vector(11.1717, -56.164, 0), Vector(0, 0, 1), 4.445),  # 29
    Part.Circle(Vector(47.6135, -31.8143, 0), Vector(0, 0, 1), 4.445),  # 30
    Part.Circle(Vector(56.164, 11.1717, 0), Vector(0, 0, 1), 4.445),  # 31
], False)
sketch5.addConstraint([
    Sketcher.Constraint("Equal", 0, 1),
    Sketcher.Constraint("Equal", 1, 2),
    Sketcher.Constraint("Equal", 2, 3),
    Sketcher.Constraint("Equal", 3, 4),
    Sketcher.Constraint("Equal", 4, 5),
    Sketcher.Constraint("Equal", 5, 6),
    Sketcher.Constraint("Equal", 6, 7),
    Sketcher.Constraint("Equal", 7, 8),
    Sketcher.Constraint("Equal", 9, 10),
    Sketcher.Constraint("Equal", 10, 11),
    Sketcher.Constraint("Equal", 11, 12),
    Sketcher.Constraint("Equal", 12, 13),
    Sketcher.Constraint("Equal", 13, 14),
    Sketcher.Constraint("Equal", 14, 15),
    Sketcher.Constraint("Equal", 15, 16),
    Sketcher.Constraint("Equal", 8, 17),
    Sketcher.Constraint("Equal", 17, 18),
    Sketcher.Constraint("Equal", 18, 19),
    Sketcher.Constraint("Equal", 19, 20),
    Sketcher.Constraint("Equal", 20, 21),
    Sketcher.Constraint("Equal", 21, 22),
    Sketcher.Constraint("Equal", 22, 23),
    Sketcher.Constraint("Equal", 16, 24),
    Sketcher.Constraint("Equal", 24, 25),
    Sketcher.Constraint("Equal", 25, 26),
    Sketcher.Constraint("Equal", 26, 27),
    Sketcher.Constraint("Equal", 27, 28),
    Sketcher.Constraint("Equal", 28, 29),
    Sketcher.Constraint("Equal", 29, 30),
    Sketcher.Constraint("Equal", 30, 31),
    Sketcher.Constraint("Symmetric", 0, 3, 4, 3, -1, 1),
    Sketcher.Constraint("Symmetric", 1, 3, 5, 3, -1, 1),
    Sketcher.Constraint("Symmetric", 2, 3, 6, 3, -1, 1),
    Sketcher.Constraint("Symmetric", 3, 3, 7, 3, -1, 1),
    Sketcher.Constraint("Symmetric", 9, 3, 13, 3, -1, 1),
    Sketcher.Constraint("Symmetric", 10, 3, 14, 3, -1, 1),
    Sketcher.Constraint("Symmetric", 11, 3, 15, 3, -1, 1),
    Sketcher.Constraint("Symmetric", 12, 3, 16, 3, -1, 1),
    Sketcher.Constraint("Symmetric", 8, 3, 20, 3, -1, 1),
    Sketcher.Constraint("Symmetric", 17, 3, 21, 3, -1, 1),
    Sketcher.Constraint("Symmetric", 18, 3, 22, 3, -1, 1),
    Sketcher.Constraint("Symmetric", 19, 3, 23, 3, -1, 1),
    Sketcher.Constraint("Symmetric", 24, 3, 28, 3, -1, 1),
    Sketcher.Constraint("Symmetric", 25, 3, 29, 3, -1, 1),
    Sketcher.Constraint("Symmetric", 26, 3, 30, 3, -1, 1),
    Sketcher.Constraint("Symmetric", 27, 3, 31, 3, -1, 1),
    Sketcher.Constraint("Symmetric", 3, 3, 5, 3, -2),
    Sketcher.Constraint("Symmetric", 9, 3, 10, 3, -2),
    Sketcher.Constraint("Symmetric", 12, 3, 15, 3, -2),
    Sketcher.Constraint("Symmetric", 17, 3, 24, 3, -2),
    Sketcher.Constraint("Symmetric", 8, 3, 25, 3, -2),
    Sketcher.Constraint("Symmetric", 23, 3, 26, 3, -2),
    Sketcher.Constraint("Symmetric", 22, 3, 27, 3, -2),
    Sketcher.Constraint("PointOnObject", 0, 3, -2),
    Sketcher.Constraint("PointOnObject", 2, 3, -1),
    Sketcher.Constraint("Diameter", 0, Q("0.16 in")),
    Sketcher.Constraint("Diameter", 9, Q("0.35 in")),
    Sketcher.Constraint("DistanceY", -1, 1, 0, 3, Q("2.497 in")),
    Sketcher.Constraint("DistanceX", 2, 3, -1, 1, Q("2.497 in")),
    Sketcher.Constraint("DistanceY", 11, 3, 17, 3, Q("0.919 in")),
    Sketcher.Constraint("DistanceX", 19, 3, 13, 3, Q("0.919 in")),
    Sketcher.Constraint("DistanceY", 3, 3, 1, 3, Q("3.5313 in")),
    Sketcher.Constraint("DistanceX", 3, 3, 5, 3, Q("3.5313 in")),
    Sketcher.Constraint("DistanceX", 1, 3, 9, 3, Q("2.7212 in")),
    Sketcher.Constraint("DistanceX", 10, 3, 8, 3, Q("1.3954 in")),
    Sketcher.Constraint("DistanceY", 3, 3, 11, 3, Q("2.7212 in")),
    Sketcher.Constraint("DistanceX", 8, 3, 16, 3, Q("1.8671 in")),
    Sketcher.Constraint("DistanceX", 11, 3, 17, 3, Q("1.0544 in")),
    Sketcher.Constraint("DistanceY", 12, 3, 18, 3, Q("1.3954 in")),
    Sketcher.Constraint("DistanceY", 13, 3, 19, 3, Q("1.0544 in")),
    Sketcher.Constraint("DistanceY", 18, 3, 26, 3, Q("0.8127 in")),
    Sketcher.Constraint("DistanceY", -1, 1, 8, 3, Q("56.164 mm")),
    Sketcher.Constraint("DistanceX", 18, 3, -1, 1, Q("56.164 mm")),
])
sketch5.setExpression("Constraints[55]", "Params.sketch5_diameter")
sketch5.setExpression("Constraints[56]", "Params.sketch5_diameter2")
pocket3 = body.newObject("PartDesign::Pocket", "Pocket002")
pocket3.Profile = sketch5
pocket3.Type = "ThroughAll"

doc.recompute()
